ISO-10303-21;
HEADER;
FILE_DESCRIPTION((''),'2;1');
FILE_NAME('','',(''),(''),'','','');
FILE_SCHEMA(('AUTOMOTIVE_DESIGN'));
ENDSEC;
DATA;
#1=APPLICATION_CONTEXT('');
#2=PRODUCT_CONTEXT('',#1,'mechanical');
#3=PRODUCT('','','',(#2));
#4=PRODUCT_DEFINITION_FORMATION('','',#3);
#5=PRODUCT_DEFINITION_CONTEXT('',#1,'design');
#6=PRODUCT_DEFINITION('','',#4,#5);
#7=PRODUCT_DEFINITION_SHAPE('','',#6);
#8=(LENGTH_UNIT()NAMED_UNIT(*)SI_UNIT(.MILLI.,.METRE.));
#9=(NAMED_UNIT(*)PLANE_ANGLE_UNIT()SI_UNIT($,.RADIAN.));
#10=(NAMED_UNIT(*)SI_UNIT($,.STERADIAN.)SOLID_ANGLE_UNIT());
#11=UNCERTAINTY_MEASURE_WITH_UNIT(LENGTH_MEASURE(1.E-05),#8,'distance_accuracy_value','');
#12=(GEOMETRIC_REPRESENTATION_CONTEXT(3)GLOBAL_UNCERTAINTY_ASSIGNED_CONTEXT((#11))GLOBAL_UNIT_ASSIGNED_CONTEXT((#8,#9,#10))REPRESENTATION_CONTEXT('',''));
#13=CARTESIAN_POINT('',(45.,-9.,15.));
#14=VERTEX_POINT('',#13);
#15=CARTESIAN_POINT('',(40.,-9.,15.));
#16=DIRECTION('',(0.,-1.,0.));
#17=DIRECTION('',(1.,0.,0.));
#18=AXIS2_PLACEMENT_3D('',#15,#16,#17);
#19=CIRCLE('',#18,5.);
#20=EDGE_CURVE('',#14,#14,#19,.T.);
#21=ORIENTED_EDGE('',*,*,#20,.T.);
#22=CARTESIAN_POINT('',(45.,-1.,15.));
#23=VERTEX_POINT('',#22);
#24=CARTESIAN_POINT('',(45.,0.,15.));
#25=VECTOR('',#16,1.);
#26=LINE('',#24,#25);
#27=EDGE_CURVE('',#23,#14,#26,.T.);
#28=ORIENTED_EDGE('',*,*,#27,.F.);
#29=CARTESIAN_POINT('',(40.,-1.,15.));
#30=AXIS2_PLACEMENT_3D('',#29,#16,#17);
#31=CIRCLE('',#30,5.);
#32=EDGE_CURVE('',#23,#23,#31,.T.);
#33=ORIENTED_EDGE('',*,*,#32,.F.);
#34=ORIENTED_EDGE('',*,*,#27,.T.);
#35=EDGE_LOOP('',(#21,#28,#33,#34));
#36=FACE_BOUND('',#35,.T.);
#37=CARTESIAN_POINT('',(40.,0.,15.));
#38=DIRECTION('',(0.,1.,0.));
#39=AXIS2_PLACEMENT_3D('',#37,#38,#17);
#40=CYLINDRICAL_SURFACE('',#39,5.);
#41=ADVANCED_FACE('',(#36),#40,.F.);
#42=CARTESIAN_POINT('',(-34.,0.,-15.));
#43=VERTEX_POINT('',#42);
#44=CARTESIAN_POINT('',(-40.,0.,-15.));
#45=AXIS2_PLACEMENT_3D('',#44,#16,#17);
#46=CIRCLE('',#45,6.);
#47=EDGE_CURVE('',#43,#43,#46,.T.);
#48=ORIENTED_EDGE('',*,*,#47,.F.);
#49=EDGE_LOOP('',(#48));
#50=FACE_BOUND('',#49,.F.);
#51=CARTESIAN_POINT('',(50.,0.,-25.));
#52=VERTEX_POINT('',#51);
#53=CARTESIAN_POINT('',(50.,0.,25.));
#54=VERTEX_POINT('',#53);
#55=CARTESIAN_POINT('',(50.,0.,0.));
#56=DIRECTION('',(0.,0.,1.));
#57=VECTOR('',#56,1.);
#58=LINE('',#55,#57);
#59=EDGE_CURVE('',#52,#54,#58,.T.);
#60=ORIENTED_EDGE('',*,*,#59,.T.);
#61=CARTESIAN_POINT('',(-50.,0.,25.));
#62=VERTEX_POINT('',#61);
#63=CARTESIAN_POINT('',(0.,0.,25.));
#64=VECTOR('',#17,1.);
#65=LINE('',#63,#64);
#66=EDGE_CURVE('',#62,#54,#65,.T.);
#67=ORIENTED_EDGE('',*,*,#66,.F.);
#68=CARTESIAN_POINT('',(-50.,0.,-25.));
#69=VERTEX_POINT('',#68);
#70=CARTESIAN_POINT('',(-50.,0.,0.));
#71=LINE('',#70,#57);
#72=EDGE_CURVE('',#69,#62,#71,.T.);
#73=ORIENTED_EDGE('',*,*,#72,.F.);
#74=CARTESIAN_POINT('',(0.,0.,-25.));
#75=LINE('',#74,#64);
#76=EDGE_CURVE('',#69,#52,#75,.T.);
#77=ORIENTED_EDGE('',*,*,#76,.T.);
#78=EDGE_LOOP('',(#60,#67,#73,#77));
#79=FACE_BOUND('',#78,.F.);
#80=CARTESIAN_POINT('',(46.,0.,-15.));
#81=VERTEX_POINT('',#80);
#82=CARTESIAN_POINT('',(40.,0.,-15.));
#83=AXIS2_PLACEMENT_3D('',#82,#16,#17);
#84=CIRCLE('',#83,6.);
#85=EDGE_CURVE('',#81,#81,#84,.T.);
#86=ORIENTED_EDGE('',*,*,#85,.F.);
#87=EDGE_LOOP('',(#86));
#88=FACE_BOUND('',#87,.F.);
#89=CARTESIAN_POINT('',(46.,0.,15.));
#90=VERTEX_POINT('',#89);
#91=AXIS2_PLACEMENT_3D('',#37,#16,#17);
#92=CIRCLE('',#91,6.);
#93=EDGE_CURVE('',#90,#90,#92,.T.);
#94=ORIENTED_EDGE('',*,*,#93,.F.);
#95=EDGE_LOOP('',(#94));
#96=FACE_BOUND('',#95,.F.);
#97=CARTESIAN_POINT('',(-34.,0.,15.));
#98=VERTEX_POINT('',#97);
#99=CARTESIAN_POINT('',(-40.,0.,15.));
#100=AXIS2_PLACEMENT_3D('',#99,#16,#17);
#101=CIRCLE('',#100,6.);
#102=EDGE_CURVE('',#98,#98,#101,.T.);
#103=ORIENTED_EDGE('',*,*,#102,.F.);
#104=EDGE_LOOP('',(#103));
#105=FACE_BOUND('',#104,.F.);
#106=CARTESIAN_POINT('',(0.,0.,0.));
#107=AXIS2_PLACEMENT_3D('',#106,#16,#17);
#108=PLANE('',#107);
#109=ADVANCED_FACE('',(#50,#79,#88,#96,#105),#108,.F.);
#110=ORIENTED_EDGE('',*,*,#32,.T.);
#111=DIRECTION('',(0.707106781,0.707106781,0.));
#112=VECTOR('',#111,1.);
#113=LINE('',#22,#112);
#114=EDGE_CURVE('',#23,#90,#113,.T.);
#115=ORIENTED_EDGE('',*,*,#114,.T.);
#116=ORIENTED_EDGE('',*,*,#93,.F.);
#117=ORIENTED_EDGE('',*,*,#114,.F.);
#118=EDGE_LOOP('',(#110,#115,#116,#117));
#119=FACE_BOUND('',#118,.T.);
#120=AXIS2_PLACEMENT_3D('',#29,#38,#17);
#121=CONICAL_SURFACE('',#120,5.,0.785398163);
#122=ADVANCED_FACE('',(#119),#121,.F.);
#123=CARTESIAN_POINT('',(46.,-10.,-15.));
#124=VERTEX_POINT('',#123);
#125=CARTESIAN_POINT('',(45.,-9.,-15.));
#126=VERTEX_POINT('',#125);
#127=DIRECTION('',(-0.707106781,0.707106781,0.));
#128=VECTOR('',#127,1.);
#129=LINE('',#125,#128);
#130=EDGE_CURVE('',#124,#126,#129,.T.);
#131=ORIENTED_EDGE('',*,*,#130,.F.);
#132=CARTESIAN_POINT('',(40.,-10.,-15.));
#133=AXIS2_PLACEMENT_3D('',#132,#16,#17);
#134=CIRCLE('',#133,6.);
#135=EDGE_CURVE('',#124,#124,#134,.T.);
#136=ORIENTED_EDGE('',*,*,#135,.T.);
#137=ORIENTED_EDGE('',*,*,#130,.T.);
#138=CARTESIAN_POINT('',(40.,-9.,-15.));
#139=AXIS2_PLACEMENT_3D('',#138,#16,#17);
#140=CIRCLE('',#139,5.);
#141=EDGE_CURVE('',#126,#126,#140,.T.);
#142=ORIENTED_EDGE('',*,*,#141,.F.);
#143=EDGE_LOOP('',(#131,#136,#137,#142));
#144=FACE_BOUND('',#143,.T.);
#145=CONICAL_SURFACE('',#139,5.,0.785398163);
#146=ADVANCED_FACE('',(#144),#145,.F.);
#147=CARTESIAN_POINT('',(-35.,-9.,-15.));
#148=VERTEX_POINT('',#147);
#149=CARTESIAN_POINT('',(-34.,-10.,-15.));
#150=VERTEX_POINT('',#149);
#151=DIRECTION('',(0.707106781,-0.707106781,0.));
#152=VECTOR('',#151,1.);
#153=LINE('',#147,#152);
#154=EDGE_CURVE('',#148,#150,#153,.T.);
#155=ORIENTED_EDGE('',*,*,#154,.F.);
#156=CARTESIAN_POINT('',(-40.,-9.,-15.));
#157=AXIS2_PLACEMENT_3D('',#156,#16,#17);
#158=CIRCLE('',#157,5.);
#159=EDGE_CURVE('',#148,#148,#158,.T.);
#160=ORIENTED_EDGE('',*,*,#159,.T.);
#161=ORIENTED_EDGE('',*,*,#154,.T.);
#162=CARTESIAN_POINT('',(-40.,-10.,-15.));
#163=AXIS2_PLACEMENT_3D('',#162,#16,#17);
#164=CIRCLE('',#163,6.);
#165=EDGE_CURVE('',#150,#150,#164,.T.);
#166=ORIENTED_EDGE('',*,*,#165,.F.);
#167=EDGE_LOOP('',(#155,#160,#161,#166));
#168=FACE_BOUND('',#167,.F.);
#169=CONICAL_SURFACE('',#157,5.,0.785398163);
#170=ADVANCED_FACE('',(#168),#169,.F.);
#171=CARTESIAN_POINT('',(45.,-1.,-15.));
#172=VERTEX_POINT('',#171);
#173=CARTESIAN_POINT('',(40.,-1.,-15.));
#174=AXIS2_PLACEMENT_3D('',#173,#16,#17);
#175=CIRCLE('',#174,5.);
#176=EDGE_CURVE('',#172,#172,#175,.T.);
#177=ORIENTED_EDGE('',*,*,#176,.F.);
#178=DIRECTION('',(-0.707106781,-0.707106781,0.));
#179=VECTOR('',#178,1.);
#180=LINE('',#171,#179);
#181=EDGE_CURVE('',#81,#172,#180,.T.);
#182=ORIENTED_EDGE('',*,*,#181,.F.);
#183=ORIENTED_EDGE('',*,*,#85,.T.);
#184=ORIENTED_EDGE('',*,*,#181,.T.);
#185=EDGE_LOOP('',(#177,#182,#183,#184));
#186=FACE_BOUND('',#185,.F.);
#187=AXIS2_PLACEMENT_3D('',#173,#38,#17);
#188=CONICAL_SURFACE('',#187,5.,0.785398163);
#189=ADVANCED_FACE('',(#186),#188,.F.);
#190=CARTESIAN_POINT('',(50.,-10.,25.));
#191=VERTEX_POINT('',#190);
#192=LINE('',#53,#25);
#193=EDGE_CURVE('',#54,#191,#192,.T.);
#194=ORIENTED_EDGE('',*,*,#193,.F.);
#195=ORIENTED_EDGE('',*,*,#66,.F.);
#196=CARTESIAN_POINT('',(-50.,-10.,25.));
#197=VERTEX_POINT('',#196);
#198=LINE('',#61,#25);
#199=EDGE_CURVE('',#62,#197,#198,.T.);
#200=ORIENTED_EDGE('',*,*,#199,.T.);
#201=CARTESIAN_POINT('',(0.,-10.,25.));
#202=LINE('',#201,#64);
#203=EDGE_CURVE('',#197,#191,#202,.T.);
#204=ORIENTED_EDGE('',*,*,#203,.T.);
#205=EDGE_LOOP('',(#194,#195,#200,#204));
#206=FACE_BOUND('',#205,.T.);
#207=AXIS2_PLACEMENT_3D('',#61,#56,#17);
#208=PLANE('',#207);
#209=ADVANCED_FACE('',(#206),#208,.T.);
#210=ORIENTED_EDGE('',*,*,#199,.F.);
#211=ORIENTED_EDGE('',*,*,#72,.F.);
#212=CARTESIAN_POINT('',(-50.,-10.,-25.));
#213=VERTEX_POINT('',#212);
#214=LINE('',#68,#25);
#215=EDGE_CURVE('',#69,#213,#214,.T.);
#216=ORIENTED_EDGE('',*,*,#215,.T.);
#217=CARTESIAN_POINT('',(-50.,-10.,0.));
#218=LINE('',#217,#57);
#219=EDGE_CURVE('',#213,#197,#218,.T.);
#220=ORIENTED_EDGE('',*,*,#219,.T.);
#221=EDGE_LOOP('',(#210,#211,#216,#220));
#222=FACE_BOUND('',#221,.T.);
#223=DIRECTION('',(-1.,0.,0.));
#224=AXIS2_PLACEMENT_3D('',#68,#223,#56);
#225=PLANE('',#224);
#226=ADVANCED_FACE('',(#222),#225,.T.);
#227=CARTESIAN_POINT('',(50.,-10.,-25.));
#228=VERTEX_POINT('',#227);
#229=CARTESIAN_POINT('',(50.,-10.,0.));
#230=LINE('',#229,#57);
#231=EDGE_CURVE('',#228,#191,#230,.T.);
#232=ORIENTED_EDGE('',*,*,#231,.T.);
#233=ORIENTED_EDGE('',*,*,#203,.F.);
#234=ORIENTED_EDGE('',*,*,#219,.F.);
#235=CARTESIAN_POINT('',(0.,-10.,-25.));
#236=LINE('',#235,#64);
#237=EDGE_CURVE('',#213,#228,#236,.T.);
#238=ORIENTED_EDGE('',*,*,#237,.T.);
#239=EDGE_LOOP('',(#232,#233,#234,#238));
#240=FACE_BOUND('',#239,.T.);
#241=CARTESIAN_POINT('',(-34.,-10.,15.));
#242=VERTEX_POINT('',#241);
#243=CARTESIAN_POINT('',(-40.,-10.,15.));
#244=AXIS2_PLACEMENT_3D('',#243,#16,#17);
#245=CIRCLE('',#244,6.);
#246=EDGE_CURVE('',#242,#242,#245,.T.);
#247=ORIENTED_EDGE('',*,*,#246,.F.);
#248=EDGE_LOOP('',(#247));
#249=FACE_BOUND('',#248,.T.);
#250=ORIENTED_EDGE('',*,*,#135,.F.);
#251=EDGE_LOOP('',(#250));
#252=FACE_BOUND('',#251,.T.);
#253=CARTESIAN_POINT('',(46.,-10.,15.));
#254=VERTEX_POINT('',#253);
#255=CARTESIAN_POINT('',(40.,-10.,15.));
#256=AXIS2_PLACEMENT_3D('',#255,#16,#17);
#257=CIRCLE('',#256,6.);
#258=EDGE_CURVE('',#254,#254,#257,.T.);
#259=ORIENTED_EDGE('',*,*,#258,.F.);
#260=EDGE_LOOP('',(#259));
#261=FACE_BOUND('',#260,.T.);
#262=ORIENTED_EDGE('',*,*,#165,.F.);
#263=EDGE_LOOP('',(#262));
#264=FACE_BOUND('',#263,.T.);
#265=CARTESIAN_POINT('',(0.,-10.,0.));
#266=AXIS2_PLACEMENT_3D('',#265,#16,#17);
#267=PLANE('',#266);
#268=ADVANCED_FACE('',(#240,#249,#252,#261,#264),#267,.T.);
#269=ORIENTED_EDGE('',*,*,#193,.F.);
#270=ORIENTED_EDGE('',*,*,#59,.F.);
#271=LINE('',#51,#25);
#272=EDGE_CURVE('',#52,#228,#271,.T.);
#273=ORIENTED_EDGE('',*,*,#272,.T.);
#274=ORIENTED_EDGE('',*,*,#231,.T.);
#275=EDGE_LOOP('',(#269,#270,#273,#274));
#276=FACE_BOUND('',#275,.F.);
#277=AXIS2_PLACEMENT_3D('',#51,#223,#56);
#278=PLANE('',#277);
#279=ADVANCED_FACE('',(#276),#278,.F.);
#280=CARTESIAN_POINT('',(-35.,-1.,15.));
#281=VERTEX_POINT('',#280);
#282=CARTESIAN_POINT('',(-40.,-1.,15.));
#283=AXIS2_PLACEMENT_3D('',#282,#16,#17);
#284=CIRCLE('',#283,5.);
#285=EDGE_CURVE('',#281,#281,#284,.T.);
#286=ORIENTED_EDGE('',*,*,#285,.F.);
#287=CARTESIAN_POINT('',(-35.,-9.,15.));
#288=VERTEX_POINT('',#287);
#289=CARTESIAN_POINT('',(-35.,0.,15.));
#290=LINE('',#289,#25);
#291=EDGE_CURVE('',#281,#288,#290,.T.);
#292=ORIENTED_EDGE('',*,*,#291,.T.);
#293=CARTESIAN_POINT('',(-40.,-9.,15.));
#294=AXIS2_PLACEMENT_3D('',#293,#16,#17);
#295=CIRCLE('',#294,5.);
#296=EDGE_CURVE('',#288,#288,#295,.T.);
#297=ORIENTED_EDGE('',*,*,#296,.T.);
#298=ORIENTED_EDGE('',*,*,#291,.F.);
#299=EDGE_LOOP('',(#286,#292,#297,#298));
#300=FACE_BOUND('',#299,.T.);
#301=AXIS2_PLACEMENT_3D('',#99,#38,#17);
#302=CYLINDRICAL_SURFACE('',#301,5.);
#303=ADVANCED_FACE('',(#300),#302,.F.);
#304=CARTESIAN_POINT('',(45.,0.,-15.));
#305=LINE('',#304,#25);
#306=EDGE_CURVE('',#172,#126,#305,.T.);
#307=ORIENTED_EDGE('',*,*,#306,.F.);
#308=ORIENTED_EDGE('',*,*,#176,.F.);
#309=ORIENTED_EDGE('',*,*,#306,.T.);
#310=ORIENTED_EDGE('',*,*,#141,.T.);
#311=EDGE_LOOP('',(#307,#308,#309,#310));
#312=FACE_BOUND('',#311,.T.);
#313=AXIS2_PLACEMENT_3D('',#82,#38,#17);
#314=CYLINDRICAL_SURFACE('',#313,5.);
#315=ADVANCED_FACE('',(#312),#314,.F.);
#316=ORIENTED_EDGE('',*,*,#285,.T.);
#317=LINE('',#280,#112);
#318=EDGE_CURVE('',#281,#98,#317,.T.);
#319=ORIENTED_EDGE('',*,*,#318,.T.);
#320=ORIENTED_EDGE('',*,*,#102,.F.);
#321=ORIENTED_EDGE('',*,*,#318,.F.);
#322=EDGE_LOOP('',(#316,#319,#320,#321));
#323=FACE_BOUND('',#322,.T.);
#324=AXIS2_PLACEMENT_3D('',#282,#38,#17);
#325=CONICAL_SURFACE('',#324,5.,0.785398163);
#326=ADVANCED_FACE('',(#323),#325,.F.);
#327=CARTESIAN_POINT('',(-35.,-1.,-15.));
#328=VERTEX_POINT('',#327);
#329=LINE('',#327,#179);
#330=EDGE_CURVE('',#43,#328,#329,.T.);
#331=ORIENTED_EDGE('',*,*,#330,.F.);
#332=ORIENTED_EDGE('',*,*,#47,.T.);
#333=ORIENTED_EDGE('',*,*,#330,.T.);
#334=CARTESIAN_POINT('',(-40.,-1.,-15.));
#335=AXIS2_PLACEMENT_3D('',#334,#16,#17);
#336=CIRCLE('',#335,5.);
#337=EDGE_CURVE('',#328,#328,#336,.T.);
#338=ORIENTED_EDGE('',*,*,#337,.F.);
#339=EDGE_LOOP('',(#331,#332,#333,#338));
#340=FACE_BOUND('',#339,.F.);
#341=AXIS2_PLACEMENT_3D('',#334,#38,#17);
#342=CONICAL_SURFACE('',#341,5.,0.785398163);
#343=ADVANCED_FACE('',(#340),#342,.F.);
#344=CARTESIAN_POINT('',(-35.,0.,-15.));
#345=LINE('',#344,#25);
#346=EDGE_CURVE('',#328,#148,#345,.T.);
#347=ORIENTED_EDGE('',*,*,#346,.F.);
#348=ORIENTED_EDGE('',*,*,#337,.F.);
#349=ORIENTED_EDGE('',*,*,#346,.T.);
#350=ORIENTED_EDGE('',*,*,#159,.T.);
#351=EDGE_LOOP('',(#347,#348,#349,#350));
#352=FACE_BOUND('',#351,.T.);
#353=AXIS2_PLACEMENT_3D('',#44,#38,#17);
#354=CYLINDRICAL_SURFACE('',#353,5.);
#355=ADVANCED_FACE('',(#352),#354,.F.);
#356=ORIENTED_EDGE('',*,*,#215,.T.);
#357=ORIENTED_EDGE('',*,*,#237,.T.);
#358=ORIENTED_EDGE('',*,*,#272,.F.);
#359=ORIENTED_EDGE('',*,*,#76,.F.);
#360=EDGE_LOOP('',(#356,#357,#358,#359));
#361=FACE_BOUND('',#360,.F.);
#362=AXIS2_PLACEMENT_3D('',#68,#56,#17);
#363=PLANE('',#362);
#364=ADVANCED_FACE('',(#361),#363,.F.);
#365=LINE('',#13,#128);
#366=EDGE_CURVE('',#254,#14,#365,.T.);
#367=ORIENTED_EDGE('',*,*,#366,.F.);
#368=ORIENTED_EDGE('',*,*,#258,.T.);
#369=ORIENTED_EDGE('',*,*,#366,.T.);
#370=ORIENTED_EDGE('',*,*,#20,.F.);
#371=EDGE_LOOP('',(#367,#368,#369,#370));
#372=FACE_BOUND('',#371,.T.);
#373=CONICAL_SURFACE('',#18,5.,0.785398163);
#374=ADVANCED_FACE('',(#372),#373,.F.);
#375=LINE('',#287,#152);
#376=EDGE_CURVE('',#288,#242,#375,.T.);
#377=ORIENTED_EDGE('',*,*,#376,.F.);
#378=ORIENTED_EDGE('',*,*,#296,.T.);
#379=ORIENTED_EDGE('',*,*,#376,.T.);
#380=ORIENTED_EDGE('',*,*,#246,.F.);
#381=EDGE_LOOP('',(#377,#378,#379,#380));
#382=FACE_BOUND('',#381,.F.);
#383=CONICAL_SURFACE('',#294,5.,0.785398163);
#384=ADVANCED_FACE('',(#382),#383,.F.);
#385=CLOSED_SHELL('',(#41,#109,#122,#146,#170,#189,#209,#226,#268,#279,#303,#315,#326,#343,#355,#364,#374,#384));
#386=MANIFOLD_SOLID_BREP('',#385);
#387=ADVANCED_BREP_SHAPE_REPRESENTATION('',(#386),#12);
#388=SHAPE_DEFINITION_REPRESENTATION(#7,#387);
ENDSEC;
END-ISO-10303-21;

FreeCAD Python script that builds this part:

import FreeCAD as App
import Part
import Sketcher

V = App.Vector


def edges_at(feature, points):
    """Names of the edges that pass closest to the given points."""
    edges = feature.Shape.Edges
    near = lambda p: min(range(len(edges)), key=lambda i: edges[i].distToShape(Part.Vertex(*p))[0])
    return sorted({f"Edge{near(p) + 1}" for p in points})

doc = App.newDocument("Part")
body = doc.addObject("PartDesign::Body", "Body")

sketch1 = body.newObject("Sketcher::SketchObject", "Sketch")
sketch1.AttachmentSupport = (doc.getObject("XZ_Plane"), [""])
sketch1.MapMode = "FlatFace"
sketch1.addGeometry([
    Part.LineSegment(V(-50, 25, 0), V(-50, -25, 0)),
    Part.LineSegment(V(-50, -25, 0), V(50, -25, 0)),
    Part.LineSegment(V(50, -25, 0), V(50, 25, 0)),
    Part.LineSegment(V(50, 25, 0), V(-50, 25, 0)),
    Part.Circle(V(-40, -15, 0), V(0, 0, 1), 5),
    Part.Circle(V(40, -15, 0), V(0, 0, 1), 5),
    Part.Circle(V(-40, 15, 0), V(0, 0, 1), 5),
    Part.Circle(V(40, 15, 0), V(0, 0, 1), 5),
], False)
sketch1.addConstraint([
    Sketcher.Constraint("Coincident", 0, 2, 1, 1),
    Sketcher.Constraint("Coincident", 1, 2, 2, 1),
    Sketcher.Constraint("Coincident", 2, 2, 3, 1),
    Sketcher.Constraint("Coincident", 3, 2, 0, 1),
    Sketcher.Constraint("Vertical", 0),
    Sketcher.Constraint("Horizontal", 1),
    Sketcher.Constraint("Vertical", 2),
    Sketcher.Constraint("Horizontal", 3),
    Sketcher.Constraint("Equal", 4, 5),
    Sketcher.Constraint("Equal", 5, 6),
    Sketcher.Constraint("Equal", 6, 7),
    Sketcher.Constraint("Symmetric", 5, 3, 6, 3, -1, 1),
    Sketcher.Constraint("Symmetric", 4, 3, 7, 3, -1, 1),
    Sketcher.Constraint("Symmetric", 0, 2, 2, 2, -1, 1),
    Sketcher.Constraint("Symmetric", 4, 3, 5, 3, -2),
    Sketcher.Constraint("Diameter", 4, 10.0),
    Sketcher.Constraint("DistanceX", 1, 1, 1, 2, 100.0),
    Sketcher.Constraint("DistanceY", 0, 2, 0, 1, 50.0),
    Sketcher.Constraint("DistanceX", 4, 3, -1, 1, 40.0),
    Sketcher.Constraint("DistanceY", 4, 3, -1, 1, 15.0),
])
pad1 = body.newObject("PartDesign::Pad", "Pad")
pad1.Profile = sketch1
pad1.Length = 10
doc.recompute()

chamfer = body.newObject("PartDesign::Chamfer", "Chamfer")
chamfer.Base = (pad1, edges_at(pad1, [(-45, -10, 15), (-45, -10, -15)]))
chamfer.Size = 1
doc.recompute()

chamfer2 = body.newObject("PartDesign::Chamfer", "Chamfer001")
chamfer2.Base = (chamfer, edges_at(chamfer, [(35, -10, 15), (35, -10, -15)]))
chamfer2.Size = 1
doc.recompute()

chamfer3 = body.newObject("PartDesign::Chamfer", "Chamfer002")
chamfer3.Base = (chamfer2, edges_at(chamfer2, [
    (35, 0, 15),
    (-45, 0, 15),
    (-45, 0, -15),
    (35, 0, -15),
]))
chamfer3.Size = 1

doc.recompute()
